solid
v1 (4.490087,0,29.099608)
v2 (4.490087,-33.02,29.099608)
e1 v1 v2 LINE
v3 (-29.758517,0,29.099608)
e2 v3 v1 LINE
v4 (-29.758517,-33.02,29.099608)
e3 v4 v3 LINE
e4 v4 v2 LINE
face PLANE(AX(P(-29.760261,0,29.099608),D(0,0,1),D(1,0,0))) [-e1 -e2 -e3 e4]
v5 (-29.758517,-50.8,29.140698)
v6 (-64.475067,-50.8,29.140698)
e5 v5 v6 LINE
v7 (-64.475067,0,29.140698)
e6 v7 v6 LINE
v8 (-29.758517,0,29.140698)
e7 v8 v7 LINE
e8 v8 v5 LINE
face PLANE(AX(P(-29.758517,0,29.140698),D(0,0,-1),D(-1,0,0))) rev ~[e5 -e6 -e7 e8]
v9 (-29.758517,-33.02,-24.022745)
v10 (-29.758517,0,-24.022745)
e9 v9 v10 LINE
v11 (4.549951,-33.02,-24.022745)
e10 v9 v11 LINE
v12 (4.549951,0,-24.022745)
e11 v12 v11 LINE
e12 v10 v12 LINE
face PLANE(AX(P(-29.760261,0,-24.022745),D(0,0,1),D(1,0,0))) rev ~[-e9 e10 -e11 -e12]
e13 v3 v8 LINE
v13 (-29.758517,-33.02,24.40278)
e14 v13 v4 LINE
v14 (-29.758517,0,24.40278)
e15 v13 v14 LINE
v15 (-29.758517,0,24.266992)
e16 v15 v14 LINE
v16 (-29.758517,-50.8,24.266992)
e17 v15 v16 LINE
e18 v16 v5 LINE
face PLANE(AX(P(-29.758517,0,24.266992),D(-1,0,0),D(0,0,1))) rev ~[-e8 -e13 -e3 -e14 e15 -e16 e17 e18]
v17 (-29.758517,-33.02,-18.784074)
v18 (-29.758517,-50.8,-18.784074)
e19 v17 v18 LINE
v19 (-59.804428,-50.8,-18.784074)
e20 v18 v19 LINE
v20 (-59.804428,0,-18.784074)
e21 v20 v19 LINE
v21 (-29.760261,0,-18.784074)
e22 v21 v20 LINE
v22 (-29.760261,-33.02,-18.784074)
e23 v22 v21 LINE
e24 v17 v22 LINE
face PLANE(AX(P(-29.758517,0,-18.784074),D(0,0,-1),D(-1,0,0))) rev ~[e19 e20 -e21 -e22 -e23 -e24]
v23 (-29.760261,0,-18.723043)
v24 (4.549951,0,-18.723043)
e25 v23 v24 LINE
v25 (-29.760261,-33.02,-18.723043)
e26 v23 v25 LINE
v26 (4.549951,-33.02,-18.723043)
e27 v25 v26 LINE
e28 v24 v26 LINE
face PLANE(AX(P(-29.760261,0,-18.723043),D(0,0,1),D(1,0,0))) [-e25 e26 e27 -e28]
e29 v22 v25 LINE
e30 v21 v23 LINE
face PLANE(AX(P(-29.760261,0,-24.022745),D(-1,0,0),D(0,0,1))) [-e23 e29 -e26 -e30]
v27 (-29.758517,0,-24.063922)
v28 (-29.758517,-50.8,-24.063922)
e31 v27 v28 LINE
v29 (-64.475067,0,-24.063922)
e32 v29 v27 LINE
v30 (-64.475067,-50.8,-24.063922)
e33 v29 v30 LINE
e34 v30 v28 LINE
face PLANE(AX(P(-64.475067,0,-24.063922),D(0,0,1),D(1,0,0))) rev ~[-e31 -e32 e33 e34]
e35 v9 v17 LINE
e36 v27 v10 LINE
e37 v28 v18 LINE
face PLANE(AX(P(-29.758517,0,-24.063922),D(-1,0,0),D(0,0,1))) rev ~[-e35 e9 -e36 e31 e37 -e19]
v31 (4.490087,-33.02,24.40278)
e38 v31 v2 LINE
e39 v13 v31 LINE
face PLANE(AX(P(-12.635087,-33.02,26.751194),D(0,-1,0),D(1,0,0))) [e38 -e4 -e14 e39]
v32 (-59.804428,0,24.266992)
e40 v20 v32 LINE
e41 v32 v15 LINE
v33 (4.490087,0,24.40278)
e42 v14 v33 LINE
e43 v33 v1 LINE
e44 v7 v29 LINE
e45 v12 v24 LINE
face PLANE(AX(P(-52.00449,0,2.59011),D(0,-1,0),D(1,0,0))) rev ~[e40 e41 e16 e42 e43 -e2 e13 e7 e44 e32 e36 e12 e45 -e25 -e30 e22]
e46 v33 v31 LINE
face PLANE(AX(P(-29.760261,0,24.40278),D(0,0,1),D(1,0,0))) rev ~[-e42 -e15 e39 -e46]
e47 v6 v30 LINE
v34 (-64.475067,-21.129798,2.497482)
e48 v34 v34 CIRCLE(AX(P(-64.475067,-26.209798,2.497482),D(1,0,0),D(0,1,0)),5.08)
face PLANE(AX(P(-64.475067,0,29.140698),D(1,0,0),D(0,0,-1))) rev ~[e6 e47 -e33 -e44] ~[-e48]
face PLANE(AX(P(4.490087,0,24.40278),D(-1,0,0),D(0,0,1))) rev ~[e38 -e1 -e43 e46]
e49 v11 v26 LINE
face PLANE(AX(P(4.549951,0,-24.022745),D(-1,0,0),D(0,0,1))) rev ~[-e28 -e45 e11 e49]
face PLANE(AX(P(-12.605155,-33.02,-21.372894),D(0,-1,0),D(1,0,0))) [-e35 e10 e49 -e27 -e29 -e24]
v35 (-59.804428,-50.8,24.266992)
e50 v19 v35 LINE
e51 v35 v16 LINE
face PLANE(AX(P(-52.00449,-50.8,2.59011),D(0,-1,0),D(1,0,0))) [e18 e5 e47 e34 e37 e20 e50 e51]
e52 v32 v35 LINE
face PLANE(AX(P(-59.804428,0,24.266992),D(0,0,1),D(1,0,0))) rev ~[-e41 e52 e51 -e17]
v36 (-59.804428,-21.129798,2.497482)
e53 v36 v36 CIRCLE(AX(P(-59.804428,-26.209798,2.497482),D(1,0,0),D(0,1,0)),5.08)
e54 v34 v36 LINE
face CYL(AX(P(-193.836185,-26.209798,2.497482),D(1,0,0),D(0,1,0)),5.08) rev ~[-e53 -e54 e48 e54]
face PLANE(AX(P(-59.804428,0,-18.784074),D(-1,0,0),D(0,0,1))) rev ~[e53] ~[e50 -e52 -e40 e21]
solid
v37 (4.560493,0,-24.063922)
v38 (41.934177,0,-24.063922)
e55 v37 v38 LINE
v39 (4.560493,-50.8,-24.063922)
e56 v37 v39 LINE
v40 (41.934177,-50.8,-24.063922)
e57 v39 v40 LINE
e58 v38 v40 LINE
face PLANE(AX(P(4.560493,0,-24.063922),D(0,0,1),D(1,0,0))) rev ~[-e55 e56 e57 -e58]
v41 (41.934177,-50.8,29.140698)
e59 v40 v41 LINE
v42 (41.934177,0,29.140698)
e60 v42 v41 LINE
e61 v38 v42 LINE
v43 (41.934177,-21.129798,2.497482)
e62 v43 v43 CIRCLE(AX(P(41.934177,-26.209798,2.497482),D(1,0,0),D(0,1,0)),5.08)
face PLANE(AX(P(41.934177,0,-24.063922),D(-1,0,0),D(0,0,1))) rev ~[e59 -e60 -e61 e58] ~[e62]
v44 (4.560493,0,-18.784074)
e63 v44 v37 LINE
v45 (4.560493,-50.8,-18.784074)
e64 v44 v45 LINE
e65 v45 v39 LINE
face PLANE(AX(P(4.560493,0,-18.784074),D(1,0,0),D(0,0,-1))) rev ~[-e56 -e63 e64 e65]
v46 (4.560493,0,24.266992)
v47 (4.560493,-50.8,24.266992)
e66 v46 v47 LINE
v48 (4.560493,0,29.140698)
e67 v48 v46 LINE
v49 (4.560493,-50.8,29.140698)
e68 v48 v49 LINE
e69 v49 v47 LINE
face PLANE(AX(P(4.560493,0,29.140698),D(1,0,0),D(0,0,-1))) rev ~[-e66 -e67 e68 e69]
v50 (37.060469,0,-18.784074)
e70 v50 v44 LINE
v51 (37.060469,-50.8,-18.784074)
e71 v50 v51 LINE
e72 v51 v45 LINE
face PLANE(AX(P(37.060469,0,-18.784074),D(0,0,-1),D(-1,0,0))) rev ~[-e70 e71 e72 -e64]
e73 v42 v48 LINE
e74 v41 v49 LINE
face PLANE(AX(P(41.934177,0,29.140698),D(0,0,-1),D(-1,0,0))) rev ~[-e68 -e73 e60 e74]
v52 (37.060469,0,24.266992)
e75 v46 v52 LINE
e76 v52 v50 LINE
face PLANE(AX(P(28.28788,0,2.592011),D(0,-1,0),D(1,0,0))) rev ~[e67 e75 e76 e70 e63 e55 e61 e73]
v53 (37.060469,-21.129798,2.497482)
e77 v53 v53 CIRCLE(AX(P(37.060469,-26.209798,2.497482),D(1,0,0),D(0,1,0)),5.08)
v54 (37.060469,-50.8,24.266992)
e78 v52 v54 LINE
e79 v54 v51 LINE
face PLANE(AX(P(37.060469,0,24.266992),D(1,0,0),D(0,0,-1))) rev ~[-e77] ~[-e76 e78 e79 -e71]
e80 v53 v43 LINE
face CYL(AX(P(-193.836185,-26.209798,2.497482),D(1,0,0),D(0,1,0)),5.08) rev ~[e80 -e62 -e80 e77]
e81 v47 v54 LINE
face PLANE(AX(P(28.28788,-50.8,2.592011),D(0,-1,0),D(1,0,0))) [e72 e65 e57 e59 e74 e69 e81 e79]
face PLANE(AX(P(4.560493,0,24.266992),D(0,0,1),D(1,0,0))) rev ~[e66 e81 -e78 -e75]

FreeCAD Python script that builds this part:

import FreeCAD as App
import Part
import Sketcher
from FreeCAD import Vector
Q = App.Units.Quantity

doc = App.newDocument("Part")
body = doc.addObject("PartDesign::Body", "Body")
body.AllowCompound = True

# Sketch on XZ plane
sketch1 = body.newObject("Sketcher::SketchObject", "Sketch")
sketch1.AttachmentSupport = (doc.getObject("XZ_Plane"), [""])
sketch1.MapMode = "FlatFace"
sketch1.addGeometry([
    Part.LineSegment(Vector(-29.758517, 29.140698, 0), Vector(-64.475067, 29.140698, 0)),  # 0
    Part.LineSegment(Vector(-64.475067, 29.140698, 0), Vector(-64.475067, -24.063922, 0)),  # 1
    Part.LineSegment(Vector(-64.475067, -24.063922, 0), Vector(-29.758517, -24.063922, 0)),  # 2
    Part.LineSegment(Vector(-29.758517, -24.063922, 0), Vector(-29.758517, -18.784074, 0)),  # 3
    Part.LineSegment(Vector(-29.758517, -18.784074, 0), Vector(-59.804428, -18.784074, 0)),  # 4
    Part.LineSegment(Vector(-59.804428, -18.784074, 0), Vector(-59.804428, 24.266992, 0)),  # 5
    Part.LineSegment(Vector(-59.804428, 24.266992, 0), Vector(-29.758517, 24.266992, 0)),  # 6
    Part.LineSegment(Vector(-29.758517, 24.266992, 0), Vector(-29.758517, 29.140698, 0)),  # 7
    Part.LineSegment(Vector(41.934177, -24.063922, 0), Vector(41.934177, 29.140698, 0)),  # 8
    Part.LineSegment(Vector(41.934177, 29.140698, 0), Vector(4.560493, 29.140698, 0)),  # 9
    Part.LineSegment(Vector(4.560493, 29.140698, 0), Vector(4.560493, 24.266992, 0)),  # 10
    Part.LineSegment(Vector(4.560493, 24.266992, 0), Vector(37.060469, 24.266992, 0)),  # 11
    Part.LineSegment(Vector(37.060469, 24.266992, 0), Vector(37.060469, -18.784074, 0)),  # 12
    Part.LineSegment(Vector(37.060469, -18.784074, 0), Vector(4.560493, -18.784074, 0)),  # 13
    Part.LineSegment(Vector(4.560493, -18.784074, 0), Vector(4.560493, -24.063922, 0)),  # 14
    Part.LineSegment(Vector(4.560493, -24.063922, 0), Vector(41.934177, -24.063922, 0)),  # 15
], False)
sketch1.addConstraint([
    Sketcher.Constraint("Coincident", 0, 2, 1, 1),
    Sketcher.Constraint("Coincident", 1, 2, 2, 1),
    Sketcher.Constraint("Coincident", 2, 2, 3, 1),
    Sketcher.Constraint("Coincident", 3, 2, 4, 1),
    Sketcher.Constraint("Coincident", 4, 2, 5, 1),
    Sketcher.Constraint("Coincident", 5, 2, 6, 1),
    Sketcher.Constraint("Coincident", 6, 2, 7, 1),
    Sketcher.Constraint("Coincident", 7, 2, 0, 1),
    Sketcher.Constraint("Coincident", 8, 2, 9, 1),
    Sketcher.Constraint("Coincident", 9, 2, 10, 1),
    Sketcher.Constraint("Coincident", 10, 2, 11, 1),
    Sketcher.Constraint("Coincident", 11, 2, 12, 1),
    Sketcher.Constraint("Coincident", 12, 2, 13, 1),
    Sketcher.Constraint("Coincident", 13, 2, 14, 1),
    Sketcher.Constraint("Coincident", 14, 2, 15, 1),
    Sketcher.Constraint("Coincident", 15, 2, 8, 1),
    Sketcher.Constraint("Horizontal", 0),
    Sketcher.Constraint("Vertical", 1),
    Sketcher.Constraint("Horizontal", 2),
    Sketcher.Constraint("Vertical", 3),
    Sketcher.Constraint("Horizontal", 4),
    Sketcher.Constraint("Vertical", 5),
    Sketcher.Constraint("Horizontal", 6),
    Sketcher.Constraint("Vertical", 7),
    Sketcher.Constraint("Vertical", 8),
    Sketcher.Constraint("Horizontal", 9),
    Sketcher.Constraint("Vertical", 10),
    Sketcher.Constraint("Horizontal", 11),
    Sketcher.Constraint("Vertical", 12),
    Sketcher.Constraint("Horizontal", 13),
    Sketcher.Constraint("Vertical", 14),
    Sketcher.Constraint("Horizontal", 15),
    Sketcher.Constraint("Horizontal", 7, 2, 8, 2),
    Sketcher.Constraint("Horizontal", 6, 2, 10, 2),
    Sketcher.Constraint("Horizontal", 4, 2, 12, 2),
    Sketcher.Constraint("Horizontal", 2, 2, 14, 2),
    Sketcher.Constraint("Vertical", 3, 2, 6, 2),
    Sketcher.Constraint("Vertical", 10, 2, 13, 2),
    Sketcher.Constraint("DistanceX", 0, 2, 0, 1, 34.71655),
    Sketcher.Constraint("DistanceX", 4, 2, 4, 1, 30.045911),
    Sketcher.Constraint("DistanceY", 1, 2, 1, 1, 53.20462),
    Sketcher.Constraint("DistanceY", 3, 1, 3, 2, 5.279848),
    Sketcher.Constraint("DistanceY", -1, 1, 0, 2, 29.140698),
    Sketcher.Constraint("DistanceX", 9, 2, 9, 1, 37.373684),
    Sketcher.Constraint("DistanceX", 11, 1, 11, 2, 32.499976),
    Sketcher.Constraint("DistanceY", 5, 1, 5, 2, 43.051066),
    Sketcher.Constraint("DistanceX", -1, 1, 11, 2, 37.060469),
    Sketcher.Constraint("DistanceX", 7, 2, 9, 2, 34.31901),
])
pad1 = body.newObject("PartDesign::Pad", "Pad")
pad1.Profile = sketch1
pad1.Length = Q("2 in")

# Sketch on XZ plane
sketch2 = body.newObject("Sketcher::SketchObject", "Sketch001")
sketch2.AttachmentSupport = (doc.getObject("XZ_Plane"), [""])
sketch2.MapMode = "FlatFace"
sketch2.addGeometry([
    Part.LineSegment(Vector(-29.760261, -18.723043, 0), Vector(-29.760261, -24.022745, 0)),  # 0
    Part.LineSegment(Vector(-29.760261, -24.022745, 0), Vector(4.549951, -24.022745, 0)),  # 1
    Part.LineSegment(Vector(4.549951, -24.022745, 0), Vector(4.549951, -18.723043, 0)),  # 2
    Part.LineSegment(Vector(4.549951, -18.723043, 0), Vector(-29.760261, -18.723043, 0)),  # 3
    Part.LineSegment(Vector(-29.760261, 29.099608, 0), Vector(-29.760261, 24.40278, 0)),  # 4
    Part.LineSegment(Vector(-29.760261, 24.40278, 0), Vector(4.490087, 24.40278, 0)),  # 5
    Part.LineSegment(Vector(4.490087, 24.40278, 0), Vector(4.490087, 29.099608, 0)),  # 6
    Part.LineSegment(Vector(4.490087, 29.099608, 0), Vector(-29.760261, 29.099608, 0)),  # 7
], False)
sketch2.addConstraint([
    Sketcher.Constraint("Coincident", 0, 2, 1, 1),
    Sketcher.Constraint("Coincident", 1, 2, 2, 1),
    Sketcher.Constraint("Coincident", 2, 2, 3, 1),
    Sketcher.Constraint("Coincident", 3, 2, 0, 1),
    Sketcher.Constraint("Coincident", 4, 2, 5, 1),
    Sketcher.Constraint("Coincident", 5, 2, 6, 1),
    Sketcher.Constraint("Coincident", 6, 2, 7, 1),
    Sketcher.Constraint("Coincident", 7, 2, 4, 1),
    Sketcher.Constraint("Vertical", 0),
    Sketcher.Constraint("Horizontal", 1),
    Sketcher.Constraint("Vertical", 2),
    Sketcher.Constraint("Horizontal", 3),
    Sketcher.Constraint("Vertical", 4),
    Sketcher.Constraint("Horizontal", 5),
    Sketcher.Constraint("Vertical", 6),
    Sketcher.Constraint("Horizontal", 7),
    Sketcher.Constraint("Vertical", 3, 2, 4, 2),
    Sketcher.Constraint("DistanceX", 5, 1, 5, 2, 34.250349),
    Sketcher.Constraint("DistanceX", 1, 1, 1, 2, 34.310213),
    Sketcher.Constraint("DistanceY", 0, 2, 0, 1, 5.299702),
    Sketcher.Constraint("DistanceY", 4, 2, 4, 1, 4.696828),
    Sketcher.Constraint("DistanceX", 0, 2, -1, 1, 29.760261),
    Sketcher.Constraint("DistanceY", -1, 1, 4, 2, 24.40278),
    Sketcher.Constraint("DistanceY", 2, 2, 6, 2, 47.822651),
])
pad2 = body.newObject("PartDesign::Pad", "Pad001")
pad2.Profile = sketch2
pad2.Length = Q("1.3 in")

# Sketch on YZ plane
sketch3 = body.newObject("Sketcher::SketchObject", "Sketch002")
sketch3.AttachmentSupport = (doc.getObject("YZ_Plane"), [""])
sketch3.MapMode = "FlatFace"
sketch3.AttachmentOffset = App.Placement(Vector(0, 0, -64.475067), App.Rotation())
sketch3.addGeometry(Part.Circle(Vector(-26.209798, 2.497482, 0), Vector(0, 0, 1), 5.08), False)
sketch3.addConstraint([
    Sketcher.Constraint("Diameter", 0, Q("0.4 in")),
    Sketcher.Constraint("DistanceX", 0, 3, -1, 1, 26.209798),
    Sketcher.Constraint("DistanceY", -1, 1, 0, 3, 2.497482),
])
doc.recompute()
hole = body.newObject("PartDesign::Hole", "Hole")
hole.Profile = sketch3
hole.ThreadType = "None"
hole.Diameter = Q("0.4 in")
hole.DepthType = "ThroughAll"
hole.Reversed = True

doc.recompute()
